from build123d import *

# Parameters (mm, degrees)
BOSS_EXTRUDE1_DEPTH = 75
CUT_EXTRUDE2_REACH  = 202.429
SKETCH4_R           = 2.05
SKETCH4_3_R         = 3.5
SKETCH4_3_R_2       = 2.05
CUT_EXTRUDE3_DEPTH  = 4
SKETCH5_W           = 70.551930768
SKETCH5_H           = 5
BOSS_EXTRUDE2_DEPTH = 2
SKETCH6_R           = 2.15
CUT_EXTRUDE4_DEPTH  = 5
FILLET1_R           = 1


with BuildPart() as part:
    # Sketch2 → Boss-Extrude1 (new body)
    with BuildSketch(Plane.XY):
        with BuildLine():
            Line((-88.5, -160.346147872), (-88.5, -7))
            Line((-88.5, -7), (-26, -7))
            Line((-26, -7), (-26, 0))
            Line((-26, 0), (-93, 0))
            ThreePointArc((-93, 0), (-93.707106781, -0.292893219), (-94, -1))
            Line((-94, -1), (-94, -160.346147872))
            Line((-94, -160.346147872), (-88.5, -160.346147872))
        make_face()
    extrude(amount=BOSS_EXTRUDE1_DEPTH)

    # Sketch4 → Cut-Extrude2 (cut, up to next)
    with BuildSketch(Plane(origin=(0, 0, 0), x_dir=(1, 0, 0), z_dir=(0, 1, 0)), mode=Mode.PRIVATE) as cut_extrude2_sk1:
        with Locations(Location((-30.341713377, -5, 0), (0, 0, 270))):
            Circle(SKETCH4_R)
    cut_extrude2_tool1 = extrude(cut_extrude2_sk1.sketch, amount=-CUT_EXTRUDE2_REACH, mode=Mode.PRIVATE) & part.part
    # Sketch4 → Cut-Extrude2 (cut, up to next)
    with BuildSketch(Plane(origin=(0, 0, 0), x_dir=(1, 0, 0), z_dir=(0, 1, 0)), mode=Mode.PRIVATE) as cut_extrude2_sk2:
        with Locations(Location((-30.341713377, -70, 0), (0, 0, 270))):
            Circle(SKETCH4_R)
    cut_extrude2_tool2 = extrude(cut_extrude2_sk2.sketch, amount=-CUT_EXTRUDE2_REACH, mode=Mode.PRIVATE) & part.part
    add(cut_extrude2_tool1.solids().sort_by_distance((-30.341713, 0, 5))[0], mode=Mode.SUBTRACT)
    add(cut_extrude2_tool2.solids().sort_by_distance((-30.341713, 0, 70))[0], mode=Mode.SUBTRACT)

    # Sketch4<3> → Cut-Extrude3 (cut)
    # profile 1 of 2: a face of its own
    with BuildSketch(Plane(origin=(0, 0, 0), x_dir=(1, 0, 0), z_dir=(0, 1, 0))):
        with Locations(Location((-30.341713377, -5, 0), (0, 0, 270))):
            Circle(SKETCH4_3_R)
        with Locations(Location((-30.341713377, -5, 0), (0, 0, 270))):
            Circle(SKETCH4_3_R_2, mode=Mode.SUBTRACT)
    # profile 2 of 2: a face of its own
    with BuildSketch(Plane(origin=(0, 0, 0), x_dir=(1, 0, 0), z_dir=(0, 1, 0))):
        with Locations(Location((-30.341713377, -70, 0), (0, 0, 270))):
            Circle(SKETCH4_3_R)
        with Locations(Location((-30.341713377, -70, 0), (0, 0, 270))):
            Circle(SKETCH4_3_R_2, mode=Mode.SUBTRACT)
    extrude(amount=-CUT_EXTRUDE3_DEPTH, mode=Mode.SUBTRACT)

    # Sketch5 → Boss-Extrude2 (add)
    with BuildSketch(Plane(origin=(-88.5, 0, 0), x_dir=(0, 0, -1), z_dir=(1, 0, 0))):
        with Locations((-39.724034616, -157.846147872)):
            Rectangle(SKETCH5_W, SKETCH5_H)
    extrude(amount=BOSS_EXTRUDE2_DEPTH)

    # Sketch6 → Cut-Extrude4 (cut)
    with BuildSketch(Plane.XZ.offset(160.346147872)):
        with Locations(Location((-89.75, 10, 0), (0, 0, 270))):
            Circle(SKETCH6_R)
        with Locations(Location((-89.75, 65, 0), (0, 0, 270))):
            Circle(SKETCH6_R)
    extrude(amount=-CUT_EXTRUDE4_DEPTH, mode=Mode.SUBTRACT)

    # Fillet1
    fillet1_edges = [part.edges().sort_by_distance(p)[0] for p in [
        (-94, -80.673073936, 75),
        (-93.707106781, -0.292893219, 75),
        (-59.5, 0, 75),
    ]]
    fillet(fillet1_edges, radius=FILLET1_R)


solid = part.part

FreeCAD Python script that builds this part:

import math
import FreeCAD as App
import Part
import Sketcher
Q = App.Units.Quantity


def edges_at(feature, points):
    """Names of the edges that pass closest to the given points."""
    edges = feature.Shape.Edges
    near = lambda p: min(range(len(edges)), key=lambda i: edges[i].distToShape(Part.Vertex(*p))[0])
    return sorted({f"Edge{near(p) + 1}" for p in points})


def add_polygon(sketch, points):
    """Adds a closed chain of lines whose ends are joined by coincident constraints."""
    first, n = sketch.GeometryCount, len(points)
    for a, b in zip(points, points[1:] + points[:1]):
        sketch.addGeometry(Part.LineSegment(App.Vector(*a, 0), App.Vector(*b, 0)), False)
    for i in range(n):
        sketch.addConstraint(Sketcher.Constraint("Coincident", first + i, 2, first + (i + 1) % n, 1))

doc = App.newDocument("Part")
body = doc.addObject("PartDesign::Body", "Body")

# Sketch on XY plane
sketch1 = doc.addObject("Sketcher::SketchObject", "Sketch")
body.addObject(sketch1)
sketch1.AttachmentSupport = (doc.XY_Plane, [""])
sketch1.MapMode = "FlatFace"
sketch1.addGeometry([
    Part.LineSegment(App.Vector(-88.5, -160.3, 0), App.Vector(-88.5, -7, 0)),  # 0
    Part.LineSegment(App.Vector(-88.5, -7, 0), App.Vector(-26, -7, 0)),  # 1
    Part.LineSegment(App.Vector(-26, -7, 0), App.Vector(-26, 0, 0)),  # 2
    Part.LineSegment(App.Vector(-26, 0, 0), App.Vector(-93, 0, 0)),  # 3
    Part.ArcOfCircle(Part.Circle(App.Vector(-93, -1, 0), App.Vector(0, 0, 1), 1), math.radians(90), math.radians(180)),  # 4
    Part.LineSegment(App.Vector(-94, -1, 0), App.Vector(-94, -160.3, 0)),  # 5
    Part.LineSegment(App.Vector(-94, -160.3, 0), App.Vector(-88.5, -160.3, 0)),  # 6
], False)
sketch1.addConstraint([
    Sketcher.Constraint("Coincident", 0, 2, 1, 1),
    Sketcher.Constraint("Coincident", 1, 2, 2, 1),
    Sketcher.Constraint("Coincident", 2, 2, 3, 1),
    Sketcher.Constraint("Tangent", 3, 2, 4, 1),
    Sketcher.Constraint("Tangent", 4, 2, 5, 1),
    Sketcher.Constraint("Coincident", 5, 2, 6, 1),
    Sketcher.Constraint("Coincident", 6, 2, 0, 1),
    Sketcher.Constraint("Vertical", 0),
    Sketcher.Constraint("Horizontal", 1),
    Sketcher.Constraint("Vertical", 2),
    Sketcher.Constraint("Horizontal", 3),
    Sketcher.Constraint("Vertical", 5),
    Sketcher.Constraint("Horizontal", 6),
    Sketcher.Constraint("PointOnObject", 2, 2, -1),
    Sketcher.Constraint("Radius", 4, Q("1 mm")),
    Sketcher.Constraint("DistanceX", 3, 2, 3, 1, Q("67 mm")),
    Sketcher.Constraint("DistanceY", 2, 1, 2, 2, Q("7 mm")),
    Sketcher.Constraint("DistanceX", 1, 1, 1, 2, Q("62.5 mm")),
    Sketcher.Constraint("DistanceX", 4, 3, -1, 1, Q("93 mm")),
    Sketcher.Constraint("DistanceY", 0, 1, 0, 2, Q("153.346148 mm")),
])
pad1 = doc.addObject("PartDesign::Pad", "Pad")
body.addObject(pad1)
pad1.Profile = sketch1
pad1.Length = 75

# Sketch on XZ plane
sketch2 = doc.addObject("Sketcher::SketchObject", "Sketch001")
body.addObject(sketch2)
sketch2.AttachmentSupport = (doc.XZ_Plane, [""])
sketch2.MapMode = "FlatFace"
sketch2.addGeometry(Part.Circle(App.Vector(-30.3, 5, 0), App.Vector(0, 0, 1), 2), False)
sketch2.addConstraint([
    Sketcher.Constraint("Diameter", 0, Q("4.1 mm")),
    Sketcher.Constraint("DistanceY", -1, 1, 0, 3, Q("5 mm")),
    Sketcher.Constraint("DistanceX", 0, 3, -1, 1, Q("30.341713 mm")),
])
pocket1 = doc.addObject("PartDesign::Pocket", "Pocket")
body.addObject(pocket1)
pocket1.Profile = sketch2
pocket1.Type = "UpToFirst"
pocket1.Reversed = True

# Sketch on XZ plane
sketch3 = doc.addObject("Sketcher::SketchObject", "Sketch002")
body.addObject(sketch3)
sketch3.AttachmentSupport = (doc.XZ_Plane, [""])
sketch3.MapMode = "FlatFace"
sketch3.addGeometry(Part.Circle(App.Vector(-30.3, 70, 0), App.Vector(0, 0, 1), 2), False)
sketch3.addConstraint([
    Sketcher.Constraint("Diameter", 0, Q("4.1 mm")),
    Sketcher.Constraint("DistanceY", -1, 1, 0, 3, Q("70 mm")),
    Sketcher.Constraint("DistanceX", 0, 3, -1, 1, Q("30.341713 mm")),
])
pocket2 = doc.addObject("PartDesign::Pocket", "Pocket001")
body.addObject(pocket2)
pocket2.Profile = sketch3
pocket2.Type = "UpToFirst"
pocket2.Reversed = True

# Sketch on XZ plane
sketch4 = doc.addObject("Sketcher::SketchObject", "Sketch003")
body.addObject(sketch4)
sketch4.AttachmentSupport = (doc.XZ_Plane, [""])
sketch4.MapMode = "FlatFace"
sketch4.addGeometry([
    Part.Circle(App.Vector(-30.3, 5, 0), App.Vector(0, 0, 1), 3.5),
    Part.Circle(App.Vector(-30.3, 5, 0), App.Vector(0, 0, 1), 2),
    Part.Circle(App.Vector(-30.3, 70, 0), App.Vector(0, 0, 1), 3.5),
    Part.Circle(App.Vector(-30.3, 70, 0), App.Vector(0, 0, 1), 2),
], False)
sketch4.addConstraint([
    Sketcher.Constraint("Coincident", 1, 3, 0, 3),
    Sketcher.Constraint("Coincident", 3, 3, 2, 3),
    Sketcher.Constraint("Equal", 0, 2),
    Sketcher.Constraint("Equal", 1, 3),
    Sketcher.Constraint("Vertical", 1, 3, 2, 3),
    Sketcher.Constraint("Diameter", 0, Q("7 mm")),
    Sketcher.Constraint("Diameter", 1, Q("4.1 mm")),
    Sketcher.Constraint("DistanceY", -1, 1, 0, 3, Q("5 mm")),
    Sketcher.Constraint("DistanceY", -1, 1, 2, 3, Q("70 mm")),
    Sketcher.Constraint("DistanceX", 0, 3, -1, 1, Q("30.341713 mm")),
])
pocket3 = doc.addObject("PartDesign::Pocket", "Pocket002")
body.addObject(pocket3)
pocket3.Profile = sketch4
pocket3.Length = 4
pocket3.Reversed = True

# Sketch on YZ plane
sketch5 = doc.addObject("Sketcher::SketchObject", "Sketch004")
body.addObject(sketch5)
sketch5.AttachmentSupport = (doc.YZ_Plane, [""])
sketch5.MapMode = "FlatFace"
sketch5.AttachmentOffset = App.Placement(App.Vector(0, 0, -88.5), App.Rotation())
add_polygon(sketch5, [(-155, 75), (-160, 75), (-160, 4), (-155, 4)])  # lines 0-3
sketch5.addConstraint([
    Sketcher.Constraint("Horizontal", 0),
    Sketcher.Constraint("Vertical", 1),
    Sketcher.Constraint("Horizontal", 2),
    Sketcher.Constraint("Vertical", 3),
    Sketcher.Constraint("DistanceX", 0, 2, 0, 1, Q("5 mm")),
    Sketcher.Constraint("DistanceY", -1, 1, 0, 2, Q("75 mm")),
    Sketcher.Constraint("DistanceY", 1, 2, 1, 1, Q("70.551931 mm")),
    Sketcher.Constraint("DistanceX", 0, 2, -1, 1, Q("160.346148 mm")),
])
pad2 = doc.addObject("PartDesign::Pad", "Pad001")
body.addObject(pad2)
pad2.Profile = sketch5
pad2.Length = 2

# Sketch on XZ plane
sketch6 = doc.addObject("Sketcher::SketchObject", "Sketch005")
body.addObject(sketch6)
sketch6.AttachmentSupport = (doc.XZ_Plane, [""])
sketch6.MapMode = "FlatFace"
sketch6.AttachmentOffset = App.Placement(App.Vector(0, 0, 160.346148), App.Rotation())
sketch6.addGeometry([
    Part.Circle(App.Vector(-89.8, 10, 0), App.Vector(0, 0, 1), 2.1),
    Part.Circle(App.Vector(-89.8, 65, 0), App.Vector(0, 0, 1), 2.1),
], False)
sketch6.addConstraint([
    Sketcher.Constraint("Equal", 0, 1),
    Sketcher.Constraint("Vertical", 0, 3, 1, 3),
    Sketcher.Constraint("Diameter", 0, Q("4.3 mm")),
    Sketcher.Constraint("DistanceY", -1, 1, 0, 3, Q("10 mm")),
    Sketcher.Constraint("DistanceY", -1, 1, 1, 3, Q("65 mm")),
    Sketcher.Constraint("DistanceX", 0, 3, -1, 1, Q("89.75 mm")),
])
pocket4 = doc.addObject("PartDesign::Pocket", "Pocket003")
body.addObject(pocket4)
pocket4.Profile = sketch6
pocket4.Length = 5
doc.recompute()

fillet = doc.addObject("PartDesign::Fillet", "Fillet")
body.addObject(fillet)
fillet.Base = (pocket4, edges_at(pocket4, [(-94, -80.673, 75), (-93.707, -0.293, 75), (-59.5, 0, 75)]))
fillet.Radius = 1

doc.recompute()
